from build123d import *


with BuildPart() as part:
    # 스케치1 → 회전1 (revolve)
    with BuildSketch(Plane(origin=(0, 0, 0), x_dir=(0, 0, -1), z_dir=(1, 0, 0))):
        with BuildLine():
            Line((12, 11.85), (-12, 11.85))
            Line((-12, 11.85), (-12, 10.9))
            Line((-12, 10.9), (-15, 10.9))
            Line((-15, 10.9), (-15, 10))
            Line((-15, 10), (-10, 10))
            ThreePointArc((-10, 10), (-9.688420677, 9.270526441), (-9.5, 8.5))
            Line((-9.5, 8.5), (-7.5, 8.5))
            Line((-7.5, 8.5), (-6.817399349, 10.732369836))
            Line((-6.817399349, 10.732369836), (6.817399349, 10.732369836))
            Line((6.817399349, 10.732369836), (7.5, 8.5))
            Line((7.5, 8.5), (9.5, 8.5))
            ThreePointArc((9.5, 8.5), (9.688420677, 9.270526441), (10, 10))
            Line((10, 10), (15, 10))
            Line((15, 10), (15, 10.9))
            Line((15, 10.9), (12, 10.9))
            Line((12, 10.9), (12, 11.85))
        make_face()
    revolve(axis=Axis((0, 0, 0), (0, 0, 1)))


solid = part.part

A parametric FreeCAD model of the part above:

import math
import FreeCAD as App
import Part
import Sketcher

V = App.Vector

doc = App.newDocument("Part")
body = doc.addObject("PartDesign::Body", "Body")

# Sketch on YZ plane
sketch1 = body.newObject("Sketcher::SketchObject", "Sketch")
sketch1.AttachmentSupport = (doc.getObject("YZ_Plane"), [""])
sketch1.MapMode = "FlatFace"
sketch1.addGeometry([
    Part.LineSegment(V(11.8, -12, 0), V(11.8, 12, 0)),  # 0
    Part.LineSegment(V(11.8, 12, 0), V(10.9, 12, 0)),  # 1
    Part.LineSegment(V(10.9, 12, 0), V(10.9, 15, 0)),  # 2
    Part.LineSegment(V(10.9, 15, 0), V(10, 15, 0)),  # 3
    Part.LineSegment(V(10, 15, 0), V(10, 10, 0)),  # 4
    Part.ArcOfCircle(Part.Circle(V(7.7, 14.3, 0), V(0, 0, 1), 4.8), math.radians(-80.95), math.radians(-62.18)),  # 5
    Part.LineSegment(V(8.5, 9.5, 0), V(8.5, 7.5, 0)),  # 6
    Part.LineSegment(V(8.5, 7.5, 0), V(10.7, 6.8, 0)),  # 7
    Part.LineSegment(V(10.7, 6.8, 0), V(10.7, -6.8, 0)),  # 8
    Part.LineSegment(V(10.7, -6.8, 0), V(8.5, -7.5, 0)),  # 9
    Part.LineSegment(V(8.5, -7.5, 0), V(8.5, -9.5, 0)),  # 10
    Part.ArcOfCircle(Part.Circle(V(7.7, -14.3, 0), V(0, 0, 1), 4.8), math.radians(62.18), math.radians(80.95)),  # 11
    Part.LineSegment(V(10, -10, 0), V(10, -15, 0)),  # 12
    Part.LineSegment(V(10, -15, 0), V(10.9, -15, 0)),  # 13
    Part.LineSegment(V(10.9, -15, 0), V(10.9, -12, 0)),  # 14
    Part.LineSegment(V(10.9, -12, 0), V(11.8, -12, 0)),  # 15
], False)
sketch1.addConstraint([
    Sketcher.Constraint("Coincident", 0, 2, 1, 1),
    Sketcher.Constraint("Coincident", 1, 2, 2, 1),
    Sketcher.Constraint("Coincident", 2, 2, 3, 1),
    Sketcher.Constraint("Coincident", 3, 2, 4, 1),
    Sketcher.Constraint("Coincident", 4, 2, 5, 2),
    Sketcher.Constraint("Coincident", 5, 1, 6, 1),
    Sketcher.Constraint("Coincident", 6, 2, 7, 1),
    Sketcher.Constraint("Coincident", 7, 2, 8, 1),
    Sketcher.Constraint("Coincident", 8, 2, 9, 1),
    Sketcher.Constraint("Coincident", 9, 2, 10, 1),
    Sketcher.Constraint("Coincident", 10, 2, 11, 2),
    Sketcher.Constraint("Coincident", 11, 1, 12, 1),
    Sketcher.Constraint("Coincident", 12, 2, 13, 1),
    Sketcher.Constraint("Coincident", 13, 2, 14, 1),
    Sketcher.Constraint("Coincident", 14, 2, 15, 1),
    Sketcher.Constraint("Coincident", 15, 2, 0, 1),
    Sketcher.Constraint("Vertical", 0),
    Sketcher.Constraint("Horizontal", 1),
    Sketcher.Constraint("Vertical", 2),
    Sketcher.Constraint("Horizontal", 3),
    Sketcher.Constraint("Vertical", 4),
    Sketcher.Constraint("Vertical", 6),
    Sketcher.Constraint("Vertical", 8),
    Sketcher.Constraint("Vertical", 10),
    Sketcher.Constraint("Vertical", 12),
    Sketcher.Constraint("Horizontal", 13),
    Sketcher.Constraint("Vertical", 14),
    Sketcher.Constraint("Horizontal", 15),
    Sketcher.Constraint("Equal", 5, 11),
    Sketcher.Constraint("Symmetric", 5, 3, 11, 3, -1),
    Sketcher.Constraint("Symmetric", 6, 2, 9, 2, -1),
    Sketcher.Constraint("Symmetric", 3, 2, 12, 2, -1),
    Sketcher.Constraint("Symmetric", 1, 2, 14, 2, -1),
    Sketcher.Constraint("Equal", 7, 9),
    Sketcher.Constraint("DistanceY", 0, 1, 0, 2, 24.0),
    Sketcher.Constraint("DistanceY", 2, 1, 2, 2, 3.0),
    Sketcher.Constraint("DistanceY", 4, 2, 4, 1, 5.0),
    Sketcher.Constraint("DistanceY", 6, 2, 6, 1, 2.0),
    Sketcher.Constraint("DistanceX", 3, 2, 3, 1, 0.9),
    Sketcher.Constraint("DistanceX", -1, 1, 3, 2, 10.0),
    Sketcher.Constraint("DistanceY", 9, 2, 6, 2, 15.0),
    Sketcher.Constraint("DistanceX", 1, 2, 1, 1, 0.95),
    Sketcher.Constraint("DistanceX", -1, 1, 5, 1, 8.5),
    Sketcher.Constraint("Radius", 5, 4.846791),
    Sketcher.Constraint("DistanceY", 8, 2, 8, 1, 13.634799),
    Sketcher.Constraint("Distance", 7, 2.334399),
])
revolution = body.newObject("PartDesign::Revolution", "Revolution")
revolution.Profile = sketch1
revolution.ReferenceAxis = (sketch1, ["V_Axis"])
revolution.Angle = 360

doc.recompute()
